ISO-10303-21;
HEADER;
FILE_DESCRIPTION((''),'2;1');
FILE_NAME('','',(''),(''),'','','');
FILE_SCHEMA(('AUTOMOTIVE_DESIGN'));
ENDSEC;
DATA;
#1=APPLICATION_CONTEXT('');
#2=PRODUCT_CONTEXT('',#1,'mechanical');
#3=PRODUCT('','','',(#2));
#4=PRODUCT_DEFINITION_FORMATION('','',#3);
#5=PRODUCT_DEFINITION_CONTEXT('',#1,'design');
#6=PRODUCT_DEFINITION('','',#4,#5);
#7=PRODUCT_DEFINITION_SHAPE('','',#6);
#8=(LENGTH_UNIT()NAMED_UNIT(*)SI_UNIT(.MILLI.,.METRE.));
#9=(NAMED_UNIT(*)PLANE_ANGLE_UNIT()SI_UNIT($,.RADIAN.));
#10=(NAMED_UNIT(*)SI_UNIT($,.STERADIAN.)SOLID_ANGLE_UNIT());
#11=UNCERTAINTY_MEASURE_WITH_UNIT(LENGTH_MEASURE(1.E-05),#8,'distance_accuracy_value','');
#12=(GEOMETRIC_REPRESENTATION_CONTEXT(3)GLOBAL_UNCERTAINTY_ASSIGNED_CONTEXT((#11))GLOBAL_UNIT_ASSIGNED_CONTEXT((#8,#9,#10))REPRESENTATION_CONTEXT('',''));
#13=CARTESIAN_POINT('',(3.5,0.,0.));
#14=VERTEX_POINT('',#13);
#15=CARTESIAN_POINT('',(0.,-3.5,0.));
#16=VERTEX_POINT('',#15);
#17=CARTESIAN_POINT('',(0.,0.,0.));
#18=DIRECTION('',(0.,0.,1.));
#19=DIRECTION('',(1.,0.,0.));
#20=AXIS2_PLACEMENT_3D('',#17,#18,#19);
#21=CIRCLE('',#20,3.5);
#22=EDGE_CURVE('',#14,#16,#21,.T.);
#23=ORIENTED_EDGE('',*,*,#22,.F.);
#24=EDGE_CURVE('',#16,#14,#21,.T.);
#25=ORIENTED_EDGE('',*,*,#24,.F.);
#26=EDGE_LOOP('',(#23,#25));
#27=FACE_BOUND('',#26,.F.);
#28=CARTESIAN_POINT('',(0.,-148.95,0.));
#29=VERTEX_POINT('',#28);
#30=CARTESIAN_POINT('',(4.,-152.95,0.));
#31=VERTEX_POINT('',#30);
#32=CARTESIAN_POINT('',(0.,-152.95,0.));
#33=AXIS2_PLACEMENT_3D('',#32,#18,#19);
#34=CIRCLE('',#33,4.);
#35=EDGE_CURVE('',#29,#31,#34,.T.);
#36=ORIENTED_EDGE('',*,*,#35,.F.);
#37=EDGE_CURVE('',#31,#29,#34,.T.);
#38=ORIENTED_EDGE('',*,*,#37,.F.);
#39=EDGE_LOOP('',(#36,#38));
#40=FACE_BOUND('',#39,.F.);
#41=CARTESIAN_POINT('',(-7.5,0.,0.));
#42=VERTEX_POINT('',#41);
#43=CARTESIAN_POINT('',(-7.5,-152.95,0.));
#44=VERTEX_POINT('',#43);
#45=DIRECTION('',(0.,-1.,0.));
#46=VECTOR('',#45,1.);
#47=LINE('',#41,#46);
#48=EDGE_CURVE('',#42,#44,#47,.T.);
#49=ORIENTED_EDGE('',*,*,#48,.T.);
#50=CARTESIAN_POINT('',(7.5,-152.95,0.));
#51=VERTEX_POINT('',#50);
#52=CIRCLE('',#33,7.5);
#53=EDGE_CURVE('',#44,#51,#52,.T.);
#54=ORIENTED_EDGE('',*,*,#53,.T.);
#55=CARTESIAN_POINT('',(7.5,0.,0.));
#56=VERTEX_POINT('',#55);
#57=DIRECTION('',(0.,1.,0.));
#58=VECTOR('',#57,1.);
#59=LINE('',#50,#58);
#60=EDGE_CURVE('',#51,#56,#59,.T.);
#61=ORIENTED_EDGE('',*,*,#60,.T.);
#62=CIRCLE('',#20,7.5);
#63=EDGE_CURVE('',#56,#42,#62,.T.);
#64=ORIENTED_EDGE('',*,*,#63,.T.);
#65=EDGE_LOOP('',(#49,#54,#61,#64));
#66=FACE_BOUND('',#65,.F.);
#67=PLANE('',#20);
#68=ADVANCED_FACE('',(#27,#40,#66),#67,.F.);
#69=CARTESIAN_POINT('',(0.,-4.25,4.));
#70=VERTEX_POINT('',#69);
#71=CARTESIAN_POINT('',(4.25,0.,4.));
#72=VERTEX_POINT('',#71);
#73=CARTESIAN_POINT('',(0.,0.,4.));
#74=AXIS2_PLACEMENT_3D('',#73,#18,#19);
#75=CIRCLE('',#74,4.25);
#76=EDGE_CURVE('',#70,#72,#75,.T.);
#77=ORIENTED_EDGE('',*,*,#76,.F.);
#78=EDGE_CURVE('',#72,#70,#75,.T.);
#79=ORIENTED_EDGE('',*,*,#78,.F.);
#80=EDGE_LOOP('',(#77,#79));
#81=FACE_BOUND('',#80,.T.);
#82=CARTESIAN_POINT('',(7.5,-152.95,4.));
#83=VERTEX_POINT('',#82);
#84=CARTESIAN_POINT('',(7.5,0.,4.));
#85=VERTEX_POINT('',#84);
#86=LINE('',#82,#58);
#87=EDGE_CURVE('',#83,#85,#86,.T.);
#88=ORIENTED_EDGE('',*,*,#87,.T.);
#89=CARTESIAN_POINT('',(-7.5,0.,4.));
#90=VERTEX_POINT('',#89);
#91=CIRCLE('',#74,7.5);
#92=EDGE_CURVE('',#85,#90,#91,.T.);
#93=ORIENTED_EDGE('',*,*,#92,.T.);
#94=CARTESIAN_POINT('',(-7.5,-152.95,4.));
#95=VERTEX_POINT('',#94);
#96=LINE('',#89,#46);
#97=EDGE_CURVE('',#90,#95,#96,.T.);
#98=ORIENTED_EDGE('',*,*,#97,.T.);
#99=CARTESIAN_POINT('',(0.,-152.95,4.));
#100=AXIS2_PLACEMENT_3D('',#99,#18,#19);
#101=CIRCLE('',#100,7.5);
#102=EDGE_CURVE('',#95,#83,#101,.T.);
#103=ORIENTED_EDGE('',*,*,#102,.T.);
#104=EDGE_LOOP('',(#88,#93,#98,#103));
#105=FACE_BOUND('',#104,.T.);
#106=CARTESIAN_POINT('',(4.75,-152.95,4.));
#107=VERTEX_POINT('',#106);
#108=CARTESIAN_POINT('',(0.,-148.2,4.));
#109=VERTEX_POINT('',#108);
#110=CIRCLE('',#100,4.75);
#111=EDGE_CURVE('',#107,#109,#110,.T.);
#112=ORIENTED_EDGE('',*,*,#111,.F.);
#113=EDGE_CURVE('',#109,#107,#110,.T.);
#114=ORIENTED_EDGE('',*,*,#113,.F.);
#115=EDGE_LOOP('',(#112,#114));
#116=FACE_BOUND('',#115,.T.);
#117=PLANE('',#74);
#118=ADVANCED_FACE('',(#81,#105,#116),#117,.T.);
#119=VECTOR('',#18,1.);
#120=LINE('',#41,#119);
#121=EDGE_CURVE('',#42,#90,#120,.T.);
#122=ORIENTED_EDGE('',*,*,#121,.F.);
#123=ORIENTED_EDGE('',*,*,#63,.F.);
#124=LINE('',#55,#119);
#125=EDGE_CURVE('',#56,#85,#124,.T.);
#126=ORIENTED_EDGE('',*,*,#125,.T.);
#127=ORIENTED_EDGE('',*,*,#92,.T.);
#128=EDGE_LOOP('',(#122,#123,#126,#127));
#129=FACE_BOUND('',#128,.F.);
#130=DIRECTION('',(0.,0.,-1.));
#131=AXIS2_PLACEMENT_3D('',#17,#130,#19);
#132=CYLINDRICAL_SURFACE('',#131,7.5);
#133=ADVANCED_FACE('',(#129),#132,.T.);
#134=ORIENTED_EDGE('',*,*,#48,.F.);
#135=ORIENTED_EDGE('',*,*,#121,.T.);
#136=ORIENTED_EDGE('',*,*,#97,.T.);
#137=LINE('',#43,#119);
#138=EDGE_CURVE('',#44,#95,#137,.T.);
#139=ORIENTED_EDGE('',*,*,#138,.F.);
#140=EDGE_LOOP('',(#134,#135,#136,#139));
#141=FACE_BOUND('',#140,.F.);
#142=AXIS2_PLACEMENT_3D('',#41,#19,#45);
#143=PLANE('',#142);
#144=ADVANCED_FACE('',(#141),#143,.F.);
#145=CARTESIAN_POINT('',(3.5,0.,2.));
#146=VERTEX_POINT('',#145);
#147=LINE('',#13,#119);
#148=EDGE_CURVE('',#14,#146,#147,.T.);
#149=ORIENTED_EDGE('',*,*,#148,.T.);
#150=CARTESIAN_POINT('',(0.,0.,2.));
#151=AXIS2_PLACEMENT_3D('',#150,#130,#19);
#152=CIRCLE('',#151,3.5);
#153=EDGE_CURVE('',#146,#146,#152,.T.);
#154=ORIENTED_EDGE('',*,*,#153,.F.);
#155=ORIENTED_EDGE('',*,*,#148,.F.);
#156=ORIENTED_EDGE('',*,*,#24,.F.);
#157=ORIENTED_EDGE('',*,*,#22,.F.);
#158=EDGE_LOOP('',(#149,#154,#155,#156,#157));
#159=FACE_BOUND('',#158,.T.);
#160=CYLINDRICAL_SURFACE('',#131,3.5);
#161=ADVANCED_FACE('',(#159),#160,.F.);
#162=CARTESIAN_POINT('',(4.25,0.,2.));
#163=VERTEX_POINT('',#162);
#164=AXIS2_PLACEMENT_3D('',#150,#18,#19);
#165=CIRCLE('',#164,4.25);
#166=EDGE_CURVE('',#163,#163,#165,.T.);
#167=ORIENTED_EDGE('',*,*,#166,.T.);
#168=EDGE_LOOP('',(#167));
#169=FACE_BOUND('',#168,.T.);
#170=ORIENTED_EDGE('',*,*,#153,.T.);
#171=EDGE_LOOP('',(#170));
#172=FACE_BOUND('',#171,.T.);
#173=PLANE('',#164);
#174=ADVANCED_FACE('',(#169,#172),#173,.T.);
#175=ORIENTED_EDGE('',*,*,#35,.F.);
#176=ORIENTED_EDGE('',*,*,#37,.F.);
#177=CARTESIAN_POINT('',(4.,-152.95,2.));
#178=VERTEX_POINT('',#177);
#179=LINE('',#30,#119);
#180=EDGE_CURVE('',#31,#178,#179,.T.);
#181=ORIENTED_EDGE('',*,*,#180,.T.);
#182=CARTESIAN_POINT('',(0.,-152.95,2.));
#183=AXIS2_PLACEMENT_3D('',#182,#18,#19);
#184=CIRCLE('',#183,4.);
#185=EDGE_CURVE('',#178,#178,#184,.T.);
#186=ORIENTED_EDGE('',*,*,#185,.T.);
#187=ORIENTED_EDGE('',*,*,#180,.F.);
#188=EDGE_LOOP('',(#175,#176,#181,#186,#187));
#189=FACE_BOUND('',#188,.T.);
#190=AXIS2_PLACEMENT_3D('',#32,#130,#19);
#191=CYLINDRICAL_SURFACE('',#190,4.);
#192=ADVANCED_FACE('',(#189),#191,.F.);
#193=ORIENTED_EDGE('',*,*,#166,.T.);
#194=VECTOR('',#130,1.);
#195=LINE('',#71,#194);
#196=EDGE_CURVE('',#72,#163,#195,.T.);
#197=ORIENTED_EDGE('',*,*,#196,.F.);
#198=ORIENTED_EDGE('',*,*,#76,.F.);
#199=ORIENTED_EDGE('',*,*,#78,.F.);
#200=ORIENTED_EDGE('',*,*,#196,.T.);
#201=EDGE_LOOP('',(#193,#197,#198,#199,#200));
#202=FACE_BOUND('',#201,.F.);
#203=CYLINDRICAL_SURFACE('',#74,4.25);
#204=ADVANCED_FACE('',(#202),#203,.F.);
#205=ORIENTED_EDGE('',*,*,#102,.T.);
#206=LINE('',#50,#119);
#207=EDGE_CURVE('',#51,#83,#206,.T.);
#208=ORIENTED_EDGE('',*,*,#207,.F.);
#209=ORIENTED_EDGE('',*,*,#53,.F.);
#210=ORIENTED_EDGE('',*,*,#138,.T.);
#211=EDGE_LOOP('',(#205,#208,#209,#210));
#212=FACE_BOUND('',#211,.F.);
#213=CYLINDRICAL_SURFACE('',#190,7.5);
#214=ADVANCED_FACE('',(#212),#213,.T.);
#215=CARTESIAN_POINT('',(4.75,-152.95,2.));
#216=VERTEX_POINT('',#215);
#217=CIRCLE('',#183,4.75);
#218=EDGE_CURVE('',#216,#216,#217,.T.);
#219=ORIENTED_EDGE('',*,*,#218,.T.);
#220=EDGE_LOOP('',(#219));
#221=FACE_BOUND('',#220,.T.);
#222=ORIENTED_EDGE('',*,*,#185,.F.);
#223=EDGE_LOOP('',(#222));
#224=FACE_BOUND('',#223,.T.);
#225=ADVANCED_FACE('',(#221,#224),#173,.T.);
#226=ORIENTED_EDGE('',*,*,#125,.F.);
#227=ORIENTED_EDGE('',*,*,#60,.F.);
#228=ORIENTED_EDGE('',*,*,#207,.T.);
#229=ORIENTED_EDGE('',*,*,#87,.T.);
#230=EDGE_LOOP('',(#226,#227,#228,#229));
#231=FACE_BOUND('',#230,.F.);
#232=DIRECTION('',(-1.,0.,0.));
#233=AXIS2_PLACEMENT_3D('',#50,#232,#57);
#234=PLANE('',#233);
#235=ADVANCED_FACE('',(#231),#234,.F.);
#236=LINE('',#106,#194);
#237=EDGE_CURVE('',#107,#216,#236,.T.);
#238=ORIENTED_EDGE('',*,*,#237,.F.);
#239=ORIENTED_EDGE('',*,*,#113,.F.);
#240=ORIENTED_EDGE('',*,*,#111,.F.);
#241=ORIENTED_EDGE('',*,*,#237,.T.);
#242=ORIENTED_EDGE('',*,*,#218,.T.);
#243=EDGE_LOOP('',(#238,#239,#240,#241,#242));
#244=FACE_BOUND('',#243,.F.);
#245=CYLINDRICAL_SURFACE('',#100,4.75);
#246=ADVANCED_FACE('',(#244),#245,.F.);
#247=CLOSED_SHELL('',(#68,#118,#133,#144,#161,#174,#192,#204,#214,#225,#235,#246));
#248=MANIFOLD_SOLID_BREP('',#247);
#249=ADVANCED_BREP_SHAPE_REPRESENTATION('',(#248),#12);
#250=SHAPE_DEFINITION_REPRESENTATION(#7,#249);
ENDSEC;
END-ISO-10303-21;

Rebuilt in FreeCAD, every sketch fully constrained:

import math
import FreeCAD as App
import Part
import Sketcher
from FreeCAD import Vector

doc = App.newDocument("Part")
body = doc.addObject("PartDesign::Body", "Body")

sketch1 = body.newObject("Sketcher::SketchObject", "Sketch")
sketch1.AttachmentSupport = (doc.getObject("XY_Plane"), [""])
sketch1.MapMode = "FlatFace"
sketch1.addGeometry([
    Part.ArcOfCircle(Part.Circle(Vector(0, 0, 0), Vector(0, 0, 1), 7.5), math.radians(0), math.radians(180)),
    Part.LineSegment(Vector(-7.5, 0, 0), Vector(-7.5, -152.95, 0)),
    Part.ArcOfCircle(Part.Circle(Vector(0, -152.95, 0), Vector(0, 0, 1), 7.5), math.radians(180), math.radians(360)),
    Part.LineSegment(Vector(7.5, -152.95, 0), Vector(7.5, 0, 0)),
    Part.Circle(Vector(0, 0, 0), Vector(0, 0, 1), 3.5),
    Part.Circle(Vector(0, -152.95, 0), Vector(0, 0, 1), 4),
], False)
sketch1.addConstraint([
    Sketcher.Constraint("Tangent", 0, 2, 1, 1),
    Sketcher.Constraint("Tangent", 1, 2, 2, 1),
    Sketcher.Constraint("Tangent", 2, 2, 3, 1),
    Sketcher.Constraint("Tangent", 3, 2, 0, 1),
    Sketcher.Constraint("Vertical", 1),
    Sketcher.Constraint("Vertical", 3),
    Sketcher.Constraint("Coincident", 0, 3, -1, 1),
    Sketcher.Constraint("Coincident", 4, 3, -1, 1),
    Sketcher.Constraint("Coincident", 5, 3, 2, 3),
    Sketcher.Constraint("Diameter", 4, 7.0),
    Sketcher.Constraint("Diameter", 5, 8.0),
    Sketcher.Constraint("Radius", 0, 7.5),
    Sketcher.Constraint("DistanceY", 1, 2, 1, 1, 152.95),
])
pad1 = body.newObject("PartDesign::Pad", "Pad")
pad1.Profile = sketch1
pad1.Length = 4

sketch2 = body.newObject("Sketcher::SketchObject", "Sketch001")
sketch2.AttachmentSupport = (doc.getObject("XY_Plane"), [""])
sketch2.MapMode = "FlatFace"
sketch2.AttachmentOffset = App.Placement(Vector(0, 0, 4), App.Rotation())
sketch2.addGeometry([
    Part.Circle(Vector(0, 0, 0), Vector(0, 0, 1), 4.25),
    Part.Circle(Vector(0, -152.95, 0), Vector(0, 0, 1), 4.75),
    Part.Circle(Vector(0, -152.95, 0), Vector(0, 0, 1), 4),
], False)
sketch2.addConstraint([
    Sketcher.Constraint("Coincident", 0, 3, -1, 1),
    Sketcher.Constraint("Coincident", 2, 3, 1, 3),
    Sketcher.Constraint("PointOnObject", 1, 3, -2),
    Sketcher.Constraint("Diameter", 0, 8.5),
    Sketcher.Constraint("Diameter", 1, 9.5),
    Sketcher.Constraint("Diameter", 2, 8.0),
    Sketcher.Constraint("DistanceY", 1, 3, -1, 1, 152.95),
])
pocket1 = body.newObject("PartDesign::Pocket", "Pocket")
pocket1.Profile = sketch2
pocket1.Length = 2

doc.recompute()
